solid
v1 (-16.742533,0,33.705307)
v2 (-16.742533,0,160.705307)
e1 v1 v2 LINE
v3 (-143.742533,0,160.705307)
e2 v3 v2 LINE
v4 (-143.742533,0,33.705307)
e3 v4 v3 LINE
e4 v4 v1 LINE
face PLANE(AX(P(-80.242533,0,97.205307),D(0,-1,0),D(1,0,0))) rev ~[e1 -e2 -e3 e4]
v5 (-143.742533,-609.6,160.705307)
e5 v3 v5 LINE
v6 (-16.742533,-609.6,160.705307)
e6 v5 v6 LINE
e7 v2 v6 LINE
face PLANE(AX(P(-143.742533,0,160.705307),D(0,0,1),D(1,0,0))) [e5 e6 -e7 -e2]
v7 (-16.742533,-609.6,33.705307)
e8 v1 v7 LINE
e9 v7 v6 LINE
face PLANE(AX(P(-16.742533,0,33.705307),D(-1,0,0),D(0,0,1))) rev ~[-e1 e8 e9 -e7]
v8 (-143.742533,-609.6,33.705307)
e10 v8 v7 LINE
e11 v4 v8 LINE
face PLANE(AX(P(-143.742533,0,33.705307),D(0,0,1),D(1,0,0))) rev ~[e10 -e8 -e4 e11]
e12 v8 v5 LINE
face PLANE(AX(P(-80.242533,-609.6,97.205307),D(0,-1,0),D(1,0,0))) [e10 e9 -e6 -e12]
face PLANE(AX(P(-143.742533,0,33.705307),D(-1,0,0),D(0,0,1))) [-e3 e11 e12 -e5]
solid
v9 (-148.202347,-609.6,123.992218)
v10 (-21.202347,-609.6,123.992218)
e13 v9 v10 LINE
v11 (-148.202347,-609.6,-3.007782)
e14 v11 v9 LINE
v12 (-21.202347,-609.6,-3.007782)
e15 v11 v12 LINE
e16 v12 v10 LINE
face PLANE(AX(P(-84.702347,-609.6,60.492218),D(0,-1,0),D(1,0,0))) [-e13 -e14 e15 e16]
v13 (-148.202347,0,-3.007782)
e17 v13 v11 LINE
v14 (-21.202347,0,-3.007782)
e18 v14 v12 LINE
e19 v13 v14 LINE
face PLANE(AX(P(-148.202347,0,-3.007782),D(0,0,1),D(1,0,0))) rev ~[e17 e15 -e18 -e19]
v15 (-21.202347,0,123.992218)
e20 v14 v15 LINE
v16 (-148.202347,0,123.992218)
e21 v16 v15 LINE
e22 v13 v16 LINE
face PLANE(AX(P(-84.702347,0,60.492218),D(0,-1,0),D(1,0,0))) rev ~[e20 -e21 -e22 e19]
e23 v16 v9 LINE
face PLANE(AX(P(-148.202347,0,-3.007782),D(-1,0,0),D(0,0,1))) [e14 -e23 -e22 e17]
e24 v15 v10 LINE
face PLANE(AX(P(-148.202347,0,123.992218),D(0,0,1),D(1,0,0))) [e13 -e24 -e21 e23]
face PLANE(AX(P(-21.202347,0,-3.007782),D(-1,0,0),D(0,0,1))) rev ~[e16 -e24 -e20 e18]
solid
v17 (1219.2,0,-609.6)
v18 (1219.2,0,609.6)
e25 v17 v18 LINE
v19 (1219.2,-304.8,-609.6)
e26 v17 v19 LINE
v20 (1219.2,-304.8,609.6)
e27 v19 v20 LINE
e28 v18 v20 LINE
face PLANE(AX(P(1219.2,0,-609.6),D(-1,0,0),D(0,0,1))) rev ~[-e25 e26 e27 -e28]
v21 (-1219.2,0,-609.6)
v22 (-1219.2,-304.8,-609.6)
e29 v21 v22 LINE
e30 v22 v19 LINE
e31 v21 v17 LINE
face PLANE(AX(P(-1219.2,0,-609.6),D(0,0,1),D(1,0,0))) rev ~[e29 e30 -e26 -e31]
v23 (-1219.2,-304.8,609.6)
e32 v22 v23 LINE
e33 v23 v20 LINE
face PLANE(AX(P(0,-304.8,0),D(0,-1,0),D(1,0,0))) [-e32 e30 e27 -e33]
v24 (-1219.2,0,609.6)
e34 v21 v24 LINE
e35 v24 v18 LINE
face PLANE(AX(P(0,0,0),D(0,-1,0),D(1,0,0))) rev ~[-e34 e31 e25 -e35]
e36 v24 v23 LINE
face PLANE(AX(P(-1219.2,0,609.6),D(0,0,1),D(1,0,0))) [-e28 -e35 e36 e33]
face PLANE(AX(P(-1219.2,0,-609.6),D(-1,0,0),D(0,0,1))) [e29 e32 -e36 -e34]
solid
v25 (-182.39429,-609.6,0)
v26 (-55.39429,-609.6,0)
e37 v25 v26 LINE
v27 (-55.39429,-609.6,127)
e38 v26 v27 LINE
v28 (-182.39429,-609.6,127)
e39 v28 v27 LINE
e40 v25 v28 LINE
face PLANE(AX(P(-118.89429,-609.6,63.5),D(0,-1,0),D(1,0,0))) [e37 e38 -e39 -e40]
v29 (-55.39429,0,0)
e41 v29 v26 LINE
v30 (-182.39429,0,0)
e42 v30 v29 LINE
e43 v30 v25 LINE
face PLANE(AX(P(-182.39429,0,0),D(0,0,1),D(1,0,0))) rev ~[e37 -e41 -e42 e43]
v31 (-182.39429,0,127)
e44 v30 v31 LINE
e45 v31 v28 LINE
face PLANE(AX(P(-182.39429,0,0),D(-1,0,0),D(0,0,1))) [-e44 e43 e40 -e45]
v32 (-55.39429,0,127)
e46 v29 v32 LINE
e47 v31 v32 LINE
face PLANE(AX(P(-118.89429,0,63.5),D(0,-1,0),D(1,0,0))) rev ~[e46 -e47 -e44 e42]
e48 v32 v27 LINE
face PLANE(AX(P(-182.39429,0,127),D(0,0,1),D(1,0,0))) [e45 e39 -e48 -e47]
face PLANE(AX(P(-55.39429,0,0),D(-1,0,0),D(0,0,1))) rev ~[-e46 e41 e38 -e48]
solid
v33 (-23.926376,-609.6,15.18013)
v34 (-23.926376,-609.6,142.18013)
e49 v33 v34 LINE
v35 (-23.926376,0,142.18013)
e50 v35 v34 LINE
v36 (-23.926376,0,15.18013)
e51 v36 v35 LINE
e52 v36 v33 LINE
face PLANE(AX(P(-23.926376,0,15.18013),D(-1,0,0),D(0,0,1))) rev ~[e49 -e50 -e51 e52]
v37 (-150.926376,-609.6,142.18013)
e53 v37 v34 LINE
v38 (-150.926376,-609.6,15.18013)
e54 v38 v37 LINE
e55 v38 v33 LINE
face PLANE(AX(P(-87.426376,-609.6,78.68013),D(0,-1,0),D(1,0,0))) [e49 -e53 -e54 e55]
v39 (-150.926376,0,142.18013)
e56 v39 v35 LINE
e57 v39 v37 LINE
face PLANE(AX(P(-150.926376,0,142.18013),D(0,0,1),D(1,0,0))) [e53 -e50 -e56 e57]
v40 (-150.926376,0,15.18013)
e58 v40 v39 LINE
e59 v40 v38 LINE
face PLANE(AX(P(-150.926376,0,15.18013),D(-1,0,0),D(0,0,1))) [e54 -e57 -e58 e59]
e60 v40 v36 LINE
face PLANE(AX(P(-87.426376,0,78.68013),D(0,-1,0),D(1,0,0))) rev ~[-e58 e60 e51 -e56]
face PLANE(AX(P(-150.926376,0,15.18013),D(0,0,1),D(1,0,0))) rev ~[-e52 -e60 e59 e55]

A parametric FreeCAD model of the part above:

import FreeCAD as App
import Part
import Sketcher

V = App.Vector
Q = App.Units.Quantity


def add_polygon(sketch, points):
    """Adds a closed chain of lines whose ends are joined by coincident constraints."""
    first, n = sketch.GeometryCount, len(points)
    for a, b in zip(points, points[1:] + points[:1]):
        sketch.addGeometry(Part.LineSegment(App.Vector(*a, 0), App.Vector(*b, 0)), False)
    for i in range(n):
        sketch.addConstraint(Sketcher.Constraint("Coincident", first + i, 2, first + (i + 1) % n, 1))

doc = App.newDocument("Part")
body = doc.addObject("PartDesign::Body", "Body")

# Sketch on XZ plane
sketch1 = body.newObject("Sketcher::SketchObject", "Sketch")
sketch1.AttachmentSupport = (doc.getObject("XZ_Plane"), [""])
sketch1.MapMode = "FlatFace"
add_polygon(sketch1, [(-1219, 610), (-1219, -610), (1219, -610), (1219, 610)])  # lines 0-3
sketch1.addConstraint([
    Sketcher.Constraint("Vertical", 0),
    Sketcher.Constraint("Horizontal", 1),
    Sketcher.Constraint("Vertical", 2),
    Sketcher.Constraint("Horizontal", 3),
    Sketcher.Constraint("Symmetric", 0, 2, 2, 2, -1, 1),
    Sketcher.Constraint("DistanceX", 1, 1, 1, 2, Q("96 in")),
    Sketcher.Constraint("DistanceY", 0, 2, 0, 1, Q("48 in")),
])
pad1 = body.newObject("PartDesign::Pad", "Pad")
pad1.Profile = sketch1
pad1.Length = Q("12 in")
body2 = doc.addObject("PartDesign::Body", "Body001")

# Sketch on XZ plane
sketch2 = body2.newObject("Sketcher::SketchObject", "Sketch001")
sketch2.AttachmentSupport = (doc.getObject("XZ_Plane001"), [""])
sketch2.MapMode = "FlatFace"
add_polygon(sketch2, [(-144, 161), (-144, 34), (-17, 34), (-17, 161)])  # lines 0-3
sketch2.addConstraint([
    Sketcher.Constraint("Vertical", 0),
    Sketcher.Constraint("Horizontal", 1),
    Sketcher.Constraint("Vertical", 2),
    Sketcher.Constraint("Horizontal", 3),
    Sketcher.Constraint("Equal", 3, 0),
    Sketcher.Constraint("DistanceX", 1, 1, 1, 2, Q("5 in")),
    Sketcher.Constraint("DistanceX", 0, 2, -1, 1, Q("143.742533 mm")),
    Sketcher.Constraint("DistanceY", -1, 1, 0, 2, Q("33.705307 mm")),
])
pad2 = body2.newObject("PartDesign::Pad", "Pad001")
pad2.Profile = sketch2
pad2.Length = Q("24 in")
body3 = doc.addObject("PartDesign::Body", "Body002")

# Sketch on XZ plane
sketch3 = body3.newObject("Sketcher::SketchObject", "Sketch002")
sketch3.AttachmentSupport = (doc.getObject("XZ_Plane002"), [""])
sketch3.MapMode = "FlatFace"
add_polygon(sketch3, [(-182, 127), (-182, 0), (-55, 0), (-55, 127)])  # lines 0-3
sketch3.addConstraint([
    Sketcher.Constraint("Vertical", 0),
    Sketcher.Constraint("Horizontal", 1),
    Sketcher.Constraint("Vertical", 2),
    Sketcher.Constraint("Horizontal", 3),
    Sketcher.Constraint("PointOnObject", 0, 2, -1),
    Sketcher.Constraint("Equal", 3, 0),
    Sketcher.Constraint("DistanceX", 1, 1, 1, 2, Q("5 in")),
    Sketcher.Constraint("DistanceX", 0, 2, -1, 1, Q("182.39429 mm")),
])
pad3 = body3.newObject("PartDesign::Pad", "Pad002")
pad3.Profile = sketch3
pad3.Length = Q("24 in")
body4 = doc.addObject("PartDesign::Body", "Body003")

# Sketch on XZ plane
sketch4 = body4.newObject("Sketcher::SketchObject", "Sketch003")
sketch4.AttachmentSupport = (doc.getObject("XZ_Plane003"), [""])
sketch4.MapMode = "FlatFace"
add_polygon(sketch4, [(-148, 124), (-148, -3), (-21, -3), (-21, 124)])  # lines 0-3
sketch4.addConstraint([
    Sketcher.Constraint("Vertical", 0),
    Sketcher.Constraint("Horizontal", 1),
    Sketcher.Constraint("Vertical", 2),
    Sketcher.Constraint("Horizontal", 3),
    Sketcher.Constraint("Equal", 3, 0),
    Sketcher.Constraint("DistanceX", 1, 1, 1, 2, Q("5 in")),
    Sketcher.Constraint("DistanceX", 0, 2, -1, 1, Q("148.202347 mm")),
    Sketcher.Constraint("DistanceY", 0, 2, -1, 1, Q("3.007782 mm")),
])
pad4 = body4.newObject("PartDesign::Pad", "Pad003")
pad4.Profile = sketch4
pad4.Length = Q("24 in")
body5 = doc.addObject("PartDesign::Body", "Body004")

# Sketch on XZ plane
sketch5 = body5.newObject("Sketcher::SketchObject", "Sketch004")
sketch5.AttachmentSupport = (doc.getObject("XZ_Plane004"), [""])
sketch5.MapMode = "FlatFace"
add_polygon(sketch5, [(-151, 142), (-151, 15), (-24, 15), (-24, 142)])  # lines 0-3
sketch5.addConstraint([
    Sketcher.Constraint("Vertical", 0),
    Sketcher.Constraint("Horizontal", 1),
    Sketcher.Constraint("Vertical", 2),
    Sketcher.Constraint("Horizontal", 3),
    Sketcher.Constraint("Equal", 3, 0),
    Sketcher.Constraint("DistanceX", 1, 1, 1, 2, Q("5 in")),
    Sketcher.Constraint("DistanceY", -1, 1, 0, 2, Q("15.18013 mm")),
    Sketcher.Constraint("DistanceX", 0, 2, -1, 1, Q("150.926376 mm")),
])
pad5 = body5.newObject("PartDesign::Pad", "Pad004")
pad5.Profile = sketch5
pad5.Length = Q("24 in")

doc.recompute()
